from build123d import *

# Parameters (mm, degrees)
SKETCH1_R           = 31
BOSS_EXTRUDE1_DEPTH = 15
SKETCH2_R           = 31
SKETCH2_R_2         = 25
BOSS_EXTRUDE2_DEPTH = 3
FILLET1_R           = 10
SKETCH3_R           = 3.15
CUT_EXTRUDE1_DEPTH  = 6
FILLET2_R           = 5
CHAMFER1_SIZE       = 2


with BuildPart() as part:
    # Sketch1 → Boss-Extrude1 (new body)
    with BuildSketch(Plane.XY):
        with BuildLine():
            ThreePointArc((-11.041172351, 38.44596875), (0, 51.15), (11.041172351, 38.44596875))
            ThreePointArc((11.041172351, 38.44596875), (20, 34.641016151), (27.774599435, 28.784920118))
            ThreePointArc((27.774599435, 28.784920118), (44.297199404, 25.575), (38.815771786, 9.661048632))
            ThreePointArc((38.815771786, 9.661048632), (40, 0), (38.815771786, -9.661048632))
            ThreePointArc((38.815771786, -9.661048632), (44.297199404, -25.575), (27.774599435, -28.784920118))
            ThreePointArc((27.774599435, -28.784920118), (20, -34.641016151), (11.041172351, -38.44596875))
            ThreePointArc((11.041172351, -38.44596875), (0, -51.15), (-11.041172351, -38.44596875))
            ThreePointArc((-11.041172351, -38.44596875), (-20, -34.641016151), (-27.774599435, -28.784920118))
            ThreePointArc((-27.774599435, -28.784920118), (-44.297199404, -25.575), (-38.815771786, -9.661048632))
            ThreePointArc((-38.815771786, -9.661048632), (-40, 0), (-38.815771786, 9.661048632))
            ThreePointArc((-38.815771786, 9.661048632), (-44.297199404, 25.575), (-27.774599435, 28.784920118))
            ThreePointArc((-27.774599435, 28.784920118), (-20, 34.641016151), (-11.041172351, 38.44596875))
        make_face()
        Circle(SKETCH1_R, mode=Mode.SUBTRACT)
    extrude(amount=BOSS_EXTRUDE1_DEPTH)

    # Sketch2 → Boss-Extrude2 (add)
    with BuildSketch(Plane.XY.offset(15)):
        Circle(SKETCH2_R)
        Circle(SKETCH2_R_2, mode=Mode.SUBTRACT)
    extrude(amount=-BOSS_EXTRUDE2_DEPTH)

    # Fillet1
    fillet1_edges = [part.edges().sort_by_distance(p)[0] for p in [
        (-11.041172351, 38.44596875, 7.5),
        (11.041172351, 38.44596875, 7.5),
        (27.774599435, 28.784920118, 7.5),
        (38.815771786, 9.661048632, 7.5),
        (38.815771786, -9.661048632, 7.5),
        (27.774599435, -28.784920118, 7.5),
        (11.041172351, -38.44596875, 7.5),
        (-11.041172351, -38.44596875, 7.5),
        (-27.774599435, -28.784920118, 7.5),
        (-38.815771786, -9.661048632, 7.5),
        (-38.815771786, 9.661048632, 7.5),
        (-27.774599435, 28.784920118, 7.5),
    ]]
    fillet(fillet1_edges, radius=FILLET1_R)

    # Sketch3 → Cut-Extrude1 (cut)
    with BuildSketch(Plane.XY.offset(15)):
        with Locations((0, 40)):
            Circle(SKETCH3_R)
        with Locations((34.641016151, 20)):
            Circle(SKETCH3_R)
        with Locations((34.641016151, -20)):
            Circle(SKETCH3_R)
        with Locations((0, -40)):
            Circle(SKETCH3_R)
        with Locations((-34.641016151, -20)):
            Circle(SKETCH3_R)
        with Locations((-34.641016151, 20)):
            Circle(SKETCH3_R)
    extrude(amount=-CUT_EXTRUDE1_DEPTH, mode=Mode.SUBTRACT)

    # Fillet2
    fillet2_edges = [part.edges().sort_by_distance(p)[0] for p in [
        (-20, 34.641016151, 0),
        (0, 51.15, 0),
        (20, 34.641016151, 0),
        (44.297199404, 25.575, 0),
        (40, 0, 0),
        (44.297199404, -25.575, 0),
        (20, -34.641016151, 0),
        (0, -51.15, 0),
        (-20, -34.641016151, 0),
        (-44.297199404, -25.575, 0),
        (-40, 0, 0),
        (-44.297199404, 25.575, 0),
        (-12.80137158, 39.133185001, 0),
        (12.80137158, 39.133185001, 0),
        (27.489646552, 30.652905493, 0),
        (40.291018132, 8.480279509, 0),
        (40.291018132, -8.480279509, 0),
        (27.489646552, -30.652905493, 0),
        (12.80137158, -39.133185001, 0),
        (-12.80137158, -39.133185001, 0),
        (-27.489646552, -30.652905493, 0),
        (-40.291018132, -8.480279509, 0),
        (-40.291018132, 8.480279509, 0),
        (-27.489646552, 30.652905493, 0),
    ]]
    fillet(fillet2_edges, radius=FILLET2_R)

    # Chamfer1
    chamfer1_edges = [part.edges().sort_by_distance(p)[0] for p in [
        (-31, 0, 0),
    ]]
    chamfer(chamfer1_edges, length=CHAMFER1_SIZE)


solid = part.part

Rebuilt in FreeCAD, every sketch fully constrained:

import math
import FreeCAD as App
import Part
import Sketcher

V = App.Vector


def edges_at(feature, points):
    """Names of the edges that pass closest to the given points."""
    edges = feature.Shape.Edges
    near = lambda p: min(range(len(edges)), key=lambda i: edges[i].distToShape(Part.Vertex(*p))[0])
    return sorted({f"Edge{near(p) + 1}" for p in points})

doc = App.newDocument("Part")
params = doc.addObject("Spreadsheet::Sheet", "Params")
for row, (alias, value) in enumerate([
    ("sketch1_diameter", "62 mm"),
    ("sketch1_radius", "40 mm"),
    ("sketch1_radius2", "11.15 mm"),
    ("pad1_length", "15 mm"),
    ("sketch2_diameter", "62 mm"),
    ("sketch2_diameter2", "50 mm"),
    ("pad2_length", "3 mm"),
    ("fillet_radius", "10 mm"),
    ("sketch3_diameter", "6.3 mm"),
    ("pocket1_length", "6 mm"),
    ("fillet2_radius", "5 mm"),
    ("chamfer_size", "2 mm"),
], start=1):
    params.set(f"A{row}", alias)
    params.set(f"B{row}", "=" + value)
    params.setAlias(f"B{row}", alias)

body = doc.addObject("PartDesign::Body", "Body")

# Sketch on XY plane
sketch1 = doc.addObject("Sketcher::SketchObject", "Sketch")
body.addObject(sketch1)
sketch1.AttachmentSupport = (doc.XY_Plane, [""])
sketch1.MapMode = "FlatFace"
sketch1.addGeometry(Part.ArcOfCircle(Part.Circle(V(0, 40, 0), V(0, 0, 1), 11), math.radians(-8), math.radians(188)), False)
sketch1.addGeometry(Part.ArcOfCircle(Part.Circle(V(0, 0, 0), V(0, 0, 1), 40), math.radians(106), math.radians(134)), False)
sketch1.addGeometry(Part.ArcOfCircle(Part.Circle(V(-35, 20, 0), V(0, 0, 1), 11), math.radians(52), math.radians(248)), False)
sketch1.addGeometry(Part.ArcOfCircle(Part.Circle(V(0, 0, 0), V(0, 0, 1), 40), math.radians(166), math.radians(194)), False)
sketch1.addGeometry(Part.ArcOfCircle(Part.Circle(V(-35, -20, 0), V(0, 0, 1), 11), math.radians(112), math.radians(308)), False)
sketch1.addGeometry(Part.ArcOfCircle(Part.Circle(V(0, 0, 0), V(0, 0, 1), 40), math.radians(-134), math.radians(-106)), False)
sketch1.addGeometry(Part.ArcOfCircle(Part.Circle(V(0, -40, 0), V(0, 0, 1), 11), math.radians(172), math.radians(368)), False)
sketch1.addGeometry(Part.ArcOfCircle(Part.Circle(V(0, 0, 0), V(0, 0, 1), 40), math.radians(-74), math.radians(-46)), False)
sketch1.addGeometry(Part.ArcOfCircle(Part.Circle(V(35, -20, 0), V(0, 0, 1), 11), math.radians(-128), math.radians(68)), False)
sketch1.addGeometry(Part.ArcOfCircle(Part.Circle(V(0, 0, 0), V(0, 0, 1), 40), math.radians(-14), math.radians(14)), False)
sketch1.addGeometry(Part.ArcOfCircle(Part.Circle(V(35, 20, 0), V(0, 0, 1), 11), math.radians(-68), math.radians(128)), False)
sketch1.addGeometry(Part.ArcOfCircle(Part.Circle(V(0, 0, 0), V(0, 0, 1), 40), math.radians(46), math.radians(74)), False)
sketch1.addGeometry(Part.Circle(V(0, 0, 0), V(0, 0, 1), 31), False)
sketch1.addConstraint(Sketcher.Constraint("Coincident", 0, 2, 1, 1))
sketch1.addConstraint(Sketcher.Constraint("Coincident", 1, 2, 2, 1))
sketch1.addConstraint(Sketcher.Constraint("Coincident", 2, 2, 3, 1))
sketch1.addConstraint(Sketcher.Constraint("Coincident", 3, 2, 4, 1))
sketch1.addConstraint(Sketcher.Constraint("Coincident", 4, 2, 5, 1))
sketch1.addConstraint(Sketcher.Constraint("Coincident", 5, 2, 6, 1))
sketch1.addConstraint(Sketcher.Constraint("Coincident", 6, 2, 7, 1))
sketch1.addConstraint(Sketcher.Constraint("Coincident", 7, 2, 8, 1))
sketch1.addConstraint(Sketcher.Constraint("Coincident", 8, 2, 9, 1))
sketch1.addConstraint(Sketcher.Constraint("Coincident", 9, 2, 10, 1))
sketch1.addConstraint(Sketcher.Constraint("Coincident", 10, 2, 11, 1))
sketch1.addConstraint(Sketcher.Constraint("Coincident", 11, 2, 0, 1))
sketch1.addConstraint(Sketcher.Constraint("Coincident", 1, 3, -1, 1))
sketch1.addConstraint(Sketcher.Constraint("Coincident", 3, 3, -1, 1))
sketch1.addConstraint(Sketcher.Constraint("Coincident", 5, 3, -1, 1))
sketch1.addConstraint(Sketcher.Constraint("Coincident", 7, 3, -1, 1))
sketch1.addConstraint(Sketcher.Constraint("Coincident", 9, 3, -1, 1))
sketch1.addConstraint(Sketcher.Constraint("Coincident", 11, 3, -1, 1))
sketch1.addConstraint(Sketcher.Constraint("Coincident", 12, 3, -1, 1))
sketch1.addConstraint(Sketcher.Constraint("Equal", 0, 2))
sketch1.addConstraint(Sketcher.Constraint("Equal", 1, 3))
sketch1.addConstraint(Sketcher.Constraint("Equal", 2, 4))
sketch1.addConstraint(Sketcher.Constraint("Equal", 3, 5))
sketch1.addConstraint(Sketcher.Constraint("Equal", 4, 6))
sketch1.addConstraint(Sketcher.Constraint("Equal", 5, 7))
sketch1.addConstraint(Sketcher.Constraint("Equal", 6, 8))
sketch1.addConstraint(Sketcher.Constraint("Equal", 7, 9))
sketch1.addConstraint(Sketcher.Constraint("Equal", 8, 10))
sketch1.addConstraint(Sketcher.Constraint("Equal", 9, 11))
sketch1.addConstraint(Sketcher.Constraint("Symmetric", 0, 3, 6, 3, -1, 1))
sketch1.addConstraint(Sketcher.Constraint("Symmetric", 2, 3, 8, 3, -1, 1))
sketch1.addConstraint(Sketcher.Constraint("Symmetric", 4, 3, 10, 3, -1, 1))
sketch1.addConstraint(Sketcher.Constraint("Symmetric", 4, 3, 8, 3, -2))
sketch1.addConstraint(Sketcher.Constraint("PointOnObject", 0, 3, -2))
sketch1.addConstraint(Sketcher.Constraint("Diameter", 12, 62.0))
sketch1.addConstraint(Sketcher.Constraint("Radius", 1, 40.0))
sketch1.addConstraint(Sketcher.Constraint("Radius", 0, 11.15))
sketch1.addConstraint(Sketcher.Constraint("DistanceY", -1, 1, 0, 3, 40.0))
sketch1.addConstraint(Sketcher.Constraint("DistanceY", -1, 1, 2, 3, 20.0))
sketch1.addConstraint(Sketcher.Constraint("DistanceX", 1, 2, -1, 1, 27.774599))
sketch1.setExpression("Constraints[34]", "Params.sketch1_diameter")
sketch1.setExpression("Constraints[35]", "Params.sketch1_radius")
sketch1.setExpression("Constraints[36]", "Params.sketch1_radius2")
pad1 = doc.addObject("PartDesign::Pad", "Pad")
body.addObject(pad1)
pad1.Profile = sketch1
pad1.setExpression("Length", "Params.pad1_length")

# Sketch on XY plane
sketch2 = doc.addObject("Sketcher::SketchObject", "Sketch001")
body.addObject(sketch2)
sketch2.AttachmentSupport = (doc.XY_Plane, [""])
sketch2.MapMode = "FlatFace"
sketch2.AttachmentOffset = App.Placement(V(0, 0, 15), App.Rotation())
sketch2.addGeometry(Part.Circle(V(0, 0, 0), V(0, 0, 1), 31), False)
sketch2.addGeometry(Part.Circle(V(0, 0, 0), V(0, 0, 1), 25), False)
sketch2.addConstraint(Sketcher.Constraint("Coincident", 0, 3, -1, 1))
sketch2.addConstraint(Sketcher.Constraint("Coincident", 1, 3, -1, 1))
sketch2.addConstraint(Sketcher.Constraint("Diameter", 0, 62.0))
sketch2.addConstraint(Sketcher.Constraint("Diameter", 1, 50.0))
sketch2.setExpression("Constraints[2]", "Params.sketch2_diameter")
sketch2.setExpression("Constraints[3]", "Params.sketch2_diameter2")
pad2 = doc.addObject("PartDesign::Pad", "Pad001")
body.addObject(pad2)
pad2.Profile = sketch2
pad2.setExpression("Length", "Params.pad2_length")
pad2.Reversed = True
doc.recompute()

fillet = doc.addObject("PartDesign::Fillet", "Fillet")
body.addObject(fillet)
fillet.Base = (pad2, edges_at(pad2, [
    (-11.041, 38.446, 7.5),
    (11.041, 38.446, 7.5),
    (27.775, 28.785, 7.5),
    (38.816, 9.661, 7.5),
    (38.816, -9.661, 7.5),
    (27.775, -28.785, 7.5),
    (11.041, -38.446, 7.5),
    (-11.041, -38.446, 7.5),
    (-27.775, -28.785, 7.5),
    (-38.816, -9.661, 7.5),
    (-38.816, 9.661, 7.5),
    (-27.775, 28.785, 7.5),
]))
fillet.setExpression("Radius", "Params.fillet_radius")

# Sketch on XY plane
sketch3 = doc.addObject("Sketcher::SketchObject", "Sketch002")
body.addObject(sketch3)
sketch3.AttachmentSupport = (doc.XY_Plane, [""])
sketch3.MapMode = "FlatFace"
sketch3.AttachmentOffset = App.Placement(V(0, 0, 15), App.Rotation())
sketch3.addGeometry(Part.Circle(V(0, 40, 0), V(0, 0, 1), 3.1), False)
sketch3.addGeometry(Part.Circle(V(34.6, 20, 0), V(0, 0, 1), 3.1), False)
sketch3.addGeometry(Part.Circle(V(34.6, -20, 0), V(0, 0, 1), 3.1), False)
sketch3.addGeometry(Part.Circle(V(0, -40, 0), V(0, 0, 1), 3.1), False)
sketch3.addGeometry(Part.Circle(V(-34.6, -20, 0), V(0, 0, 1), 3.1), False)
sketch3.addGeometry(Part.Circle(V(-34.6, 20, 0), V(0, 0, 1), 3.1), False)
sketch3.addConstraint(Sketcher.Constraint("Equal", 0, 1))
sketch3.addConstraint(Sketcher.Constraint("Equal", 1, 2))
sketch3.addConstraint(Sketcher.Constraint("Equal", 2, 3))
sketch3.addConstraint(Sketcher.Constraint("Equal", 3, 4))
sketch3.addConstraint(Sketcher.Constraint("Equal", 4, 5))
sketch3.addConstraint(Sketcher.Constraint("Symmetric", 0, 3, 3, 3, -1, 1))
sketch3.addConstraint(Sketcher.Constraint("Symmetric", 1, 3, 4, 3, -1, 1))
sketch3.addConstraint(Sketcher.Constraint("Symmetric", 2, 3, 5, 3, -1, 1))
sketch3.addConstraint(Sketcher.Constraint("Symmetric", 2, 3, 4, 3, -2))
sketch3.addConstraint(Sketcher.Constraint("PointOnObject", 0, 3, -2))
sketch3.addConstraint(Sketcher.Constraint("Diameter", 0, 6.3))
sketch3.addConstraint(Sketcher.Constraint("DistanceY", -1, 1, 0, 3, 40.0))
sketch3.addConstraint(Sketcher.Constraint("DistanceY", -1, 1, 1, 3, 20.0))
sketch3.addConstraint(Sketcher.Constraint("DistanceX", -1, 1, 1, 3, 34.641016))
sketch3.setExpression("Constraints[10]", "Params.sketch3_diameter")
pocket1 = doc.addObject("PartDesign::Pocket", "Pocket")
body.addObject(pocket1)
pocket1.Profile = sketch3
pocket1.setExpression("Length", "Params.pocket1_length")
doc.recompute()

fillet2 = doc.addObject("PartDesign::Fillet", "Fillet001")
body.addObject(fillet2)
fillet2.Base = (pocket1, edges_at(pocket1, [
    (-20, 34.641, 0),
    (0, 51.15, 0),
    (20, 34.641, 0),
    (44.297, 25.575, 0),
    (40, 0, 0),
    (44.297, -25.575, 0),
    (20, -34.641, 0),
    (0, -51.15, 0),
    (-20, -34.641, 0),
    (-44.297, -25.575, 0),
    (-40, 0, 0),
    (-44.297, 25.575, 0),
    (-12.801, 39.133, 0),
    (12.801, 39.133, 0),
    (27.49, 30.653, 0),
    (40.291, 8.48, 0),
    (40.291, -8.48, 0),
    (27.49, -30.653, 0),
    (12.801, -39.133, 0),
    (-12.801, -39.133, 0),
    (-27.49, -30.653, 0),
    (-40.291, -8.48, 0),
    (-40.291, 8.48, 0),
    (-27.49, 30.653, 0),
]))
fillet2.setExpression("Radius", "Params.fillet2_radius")
doc.recompute()

chamfer = doc.addObject("PartDesign::Chamfer", "Chamfer")
body.addObject(chamfer)
chamfer.Base = (fillet2, edges_at(fillet2, [(-31, 0, 0)]))
chamfer.setExpression("Size", "Params.chamfer_size")

doc.recompute()
